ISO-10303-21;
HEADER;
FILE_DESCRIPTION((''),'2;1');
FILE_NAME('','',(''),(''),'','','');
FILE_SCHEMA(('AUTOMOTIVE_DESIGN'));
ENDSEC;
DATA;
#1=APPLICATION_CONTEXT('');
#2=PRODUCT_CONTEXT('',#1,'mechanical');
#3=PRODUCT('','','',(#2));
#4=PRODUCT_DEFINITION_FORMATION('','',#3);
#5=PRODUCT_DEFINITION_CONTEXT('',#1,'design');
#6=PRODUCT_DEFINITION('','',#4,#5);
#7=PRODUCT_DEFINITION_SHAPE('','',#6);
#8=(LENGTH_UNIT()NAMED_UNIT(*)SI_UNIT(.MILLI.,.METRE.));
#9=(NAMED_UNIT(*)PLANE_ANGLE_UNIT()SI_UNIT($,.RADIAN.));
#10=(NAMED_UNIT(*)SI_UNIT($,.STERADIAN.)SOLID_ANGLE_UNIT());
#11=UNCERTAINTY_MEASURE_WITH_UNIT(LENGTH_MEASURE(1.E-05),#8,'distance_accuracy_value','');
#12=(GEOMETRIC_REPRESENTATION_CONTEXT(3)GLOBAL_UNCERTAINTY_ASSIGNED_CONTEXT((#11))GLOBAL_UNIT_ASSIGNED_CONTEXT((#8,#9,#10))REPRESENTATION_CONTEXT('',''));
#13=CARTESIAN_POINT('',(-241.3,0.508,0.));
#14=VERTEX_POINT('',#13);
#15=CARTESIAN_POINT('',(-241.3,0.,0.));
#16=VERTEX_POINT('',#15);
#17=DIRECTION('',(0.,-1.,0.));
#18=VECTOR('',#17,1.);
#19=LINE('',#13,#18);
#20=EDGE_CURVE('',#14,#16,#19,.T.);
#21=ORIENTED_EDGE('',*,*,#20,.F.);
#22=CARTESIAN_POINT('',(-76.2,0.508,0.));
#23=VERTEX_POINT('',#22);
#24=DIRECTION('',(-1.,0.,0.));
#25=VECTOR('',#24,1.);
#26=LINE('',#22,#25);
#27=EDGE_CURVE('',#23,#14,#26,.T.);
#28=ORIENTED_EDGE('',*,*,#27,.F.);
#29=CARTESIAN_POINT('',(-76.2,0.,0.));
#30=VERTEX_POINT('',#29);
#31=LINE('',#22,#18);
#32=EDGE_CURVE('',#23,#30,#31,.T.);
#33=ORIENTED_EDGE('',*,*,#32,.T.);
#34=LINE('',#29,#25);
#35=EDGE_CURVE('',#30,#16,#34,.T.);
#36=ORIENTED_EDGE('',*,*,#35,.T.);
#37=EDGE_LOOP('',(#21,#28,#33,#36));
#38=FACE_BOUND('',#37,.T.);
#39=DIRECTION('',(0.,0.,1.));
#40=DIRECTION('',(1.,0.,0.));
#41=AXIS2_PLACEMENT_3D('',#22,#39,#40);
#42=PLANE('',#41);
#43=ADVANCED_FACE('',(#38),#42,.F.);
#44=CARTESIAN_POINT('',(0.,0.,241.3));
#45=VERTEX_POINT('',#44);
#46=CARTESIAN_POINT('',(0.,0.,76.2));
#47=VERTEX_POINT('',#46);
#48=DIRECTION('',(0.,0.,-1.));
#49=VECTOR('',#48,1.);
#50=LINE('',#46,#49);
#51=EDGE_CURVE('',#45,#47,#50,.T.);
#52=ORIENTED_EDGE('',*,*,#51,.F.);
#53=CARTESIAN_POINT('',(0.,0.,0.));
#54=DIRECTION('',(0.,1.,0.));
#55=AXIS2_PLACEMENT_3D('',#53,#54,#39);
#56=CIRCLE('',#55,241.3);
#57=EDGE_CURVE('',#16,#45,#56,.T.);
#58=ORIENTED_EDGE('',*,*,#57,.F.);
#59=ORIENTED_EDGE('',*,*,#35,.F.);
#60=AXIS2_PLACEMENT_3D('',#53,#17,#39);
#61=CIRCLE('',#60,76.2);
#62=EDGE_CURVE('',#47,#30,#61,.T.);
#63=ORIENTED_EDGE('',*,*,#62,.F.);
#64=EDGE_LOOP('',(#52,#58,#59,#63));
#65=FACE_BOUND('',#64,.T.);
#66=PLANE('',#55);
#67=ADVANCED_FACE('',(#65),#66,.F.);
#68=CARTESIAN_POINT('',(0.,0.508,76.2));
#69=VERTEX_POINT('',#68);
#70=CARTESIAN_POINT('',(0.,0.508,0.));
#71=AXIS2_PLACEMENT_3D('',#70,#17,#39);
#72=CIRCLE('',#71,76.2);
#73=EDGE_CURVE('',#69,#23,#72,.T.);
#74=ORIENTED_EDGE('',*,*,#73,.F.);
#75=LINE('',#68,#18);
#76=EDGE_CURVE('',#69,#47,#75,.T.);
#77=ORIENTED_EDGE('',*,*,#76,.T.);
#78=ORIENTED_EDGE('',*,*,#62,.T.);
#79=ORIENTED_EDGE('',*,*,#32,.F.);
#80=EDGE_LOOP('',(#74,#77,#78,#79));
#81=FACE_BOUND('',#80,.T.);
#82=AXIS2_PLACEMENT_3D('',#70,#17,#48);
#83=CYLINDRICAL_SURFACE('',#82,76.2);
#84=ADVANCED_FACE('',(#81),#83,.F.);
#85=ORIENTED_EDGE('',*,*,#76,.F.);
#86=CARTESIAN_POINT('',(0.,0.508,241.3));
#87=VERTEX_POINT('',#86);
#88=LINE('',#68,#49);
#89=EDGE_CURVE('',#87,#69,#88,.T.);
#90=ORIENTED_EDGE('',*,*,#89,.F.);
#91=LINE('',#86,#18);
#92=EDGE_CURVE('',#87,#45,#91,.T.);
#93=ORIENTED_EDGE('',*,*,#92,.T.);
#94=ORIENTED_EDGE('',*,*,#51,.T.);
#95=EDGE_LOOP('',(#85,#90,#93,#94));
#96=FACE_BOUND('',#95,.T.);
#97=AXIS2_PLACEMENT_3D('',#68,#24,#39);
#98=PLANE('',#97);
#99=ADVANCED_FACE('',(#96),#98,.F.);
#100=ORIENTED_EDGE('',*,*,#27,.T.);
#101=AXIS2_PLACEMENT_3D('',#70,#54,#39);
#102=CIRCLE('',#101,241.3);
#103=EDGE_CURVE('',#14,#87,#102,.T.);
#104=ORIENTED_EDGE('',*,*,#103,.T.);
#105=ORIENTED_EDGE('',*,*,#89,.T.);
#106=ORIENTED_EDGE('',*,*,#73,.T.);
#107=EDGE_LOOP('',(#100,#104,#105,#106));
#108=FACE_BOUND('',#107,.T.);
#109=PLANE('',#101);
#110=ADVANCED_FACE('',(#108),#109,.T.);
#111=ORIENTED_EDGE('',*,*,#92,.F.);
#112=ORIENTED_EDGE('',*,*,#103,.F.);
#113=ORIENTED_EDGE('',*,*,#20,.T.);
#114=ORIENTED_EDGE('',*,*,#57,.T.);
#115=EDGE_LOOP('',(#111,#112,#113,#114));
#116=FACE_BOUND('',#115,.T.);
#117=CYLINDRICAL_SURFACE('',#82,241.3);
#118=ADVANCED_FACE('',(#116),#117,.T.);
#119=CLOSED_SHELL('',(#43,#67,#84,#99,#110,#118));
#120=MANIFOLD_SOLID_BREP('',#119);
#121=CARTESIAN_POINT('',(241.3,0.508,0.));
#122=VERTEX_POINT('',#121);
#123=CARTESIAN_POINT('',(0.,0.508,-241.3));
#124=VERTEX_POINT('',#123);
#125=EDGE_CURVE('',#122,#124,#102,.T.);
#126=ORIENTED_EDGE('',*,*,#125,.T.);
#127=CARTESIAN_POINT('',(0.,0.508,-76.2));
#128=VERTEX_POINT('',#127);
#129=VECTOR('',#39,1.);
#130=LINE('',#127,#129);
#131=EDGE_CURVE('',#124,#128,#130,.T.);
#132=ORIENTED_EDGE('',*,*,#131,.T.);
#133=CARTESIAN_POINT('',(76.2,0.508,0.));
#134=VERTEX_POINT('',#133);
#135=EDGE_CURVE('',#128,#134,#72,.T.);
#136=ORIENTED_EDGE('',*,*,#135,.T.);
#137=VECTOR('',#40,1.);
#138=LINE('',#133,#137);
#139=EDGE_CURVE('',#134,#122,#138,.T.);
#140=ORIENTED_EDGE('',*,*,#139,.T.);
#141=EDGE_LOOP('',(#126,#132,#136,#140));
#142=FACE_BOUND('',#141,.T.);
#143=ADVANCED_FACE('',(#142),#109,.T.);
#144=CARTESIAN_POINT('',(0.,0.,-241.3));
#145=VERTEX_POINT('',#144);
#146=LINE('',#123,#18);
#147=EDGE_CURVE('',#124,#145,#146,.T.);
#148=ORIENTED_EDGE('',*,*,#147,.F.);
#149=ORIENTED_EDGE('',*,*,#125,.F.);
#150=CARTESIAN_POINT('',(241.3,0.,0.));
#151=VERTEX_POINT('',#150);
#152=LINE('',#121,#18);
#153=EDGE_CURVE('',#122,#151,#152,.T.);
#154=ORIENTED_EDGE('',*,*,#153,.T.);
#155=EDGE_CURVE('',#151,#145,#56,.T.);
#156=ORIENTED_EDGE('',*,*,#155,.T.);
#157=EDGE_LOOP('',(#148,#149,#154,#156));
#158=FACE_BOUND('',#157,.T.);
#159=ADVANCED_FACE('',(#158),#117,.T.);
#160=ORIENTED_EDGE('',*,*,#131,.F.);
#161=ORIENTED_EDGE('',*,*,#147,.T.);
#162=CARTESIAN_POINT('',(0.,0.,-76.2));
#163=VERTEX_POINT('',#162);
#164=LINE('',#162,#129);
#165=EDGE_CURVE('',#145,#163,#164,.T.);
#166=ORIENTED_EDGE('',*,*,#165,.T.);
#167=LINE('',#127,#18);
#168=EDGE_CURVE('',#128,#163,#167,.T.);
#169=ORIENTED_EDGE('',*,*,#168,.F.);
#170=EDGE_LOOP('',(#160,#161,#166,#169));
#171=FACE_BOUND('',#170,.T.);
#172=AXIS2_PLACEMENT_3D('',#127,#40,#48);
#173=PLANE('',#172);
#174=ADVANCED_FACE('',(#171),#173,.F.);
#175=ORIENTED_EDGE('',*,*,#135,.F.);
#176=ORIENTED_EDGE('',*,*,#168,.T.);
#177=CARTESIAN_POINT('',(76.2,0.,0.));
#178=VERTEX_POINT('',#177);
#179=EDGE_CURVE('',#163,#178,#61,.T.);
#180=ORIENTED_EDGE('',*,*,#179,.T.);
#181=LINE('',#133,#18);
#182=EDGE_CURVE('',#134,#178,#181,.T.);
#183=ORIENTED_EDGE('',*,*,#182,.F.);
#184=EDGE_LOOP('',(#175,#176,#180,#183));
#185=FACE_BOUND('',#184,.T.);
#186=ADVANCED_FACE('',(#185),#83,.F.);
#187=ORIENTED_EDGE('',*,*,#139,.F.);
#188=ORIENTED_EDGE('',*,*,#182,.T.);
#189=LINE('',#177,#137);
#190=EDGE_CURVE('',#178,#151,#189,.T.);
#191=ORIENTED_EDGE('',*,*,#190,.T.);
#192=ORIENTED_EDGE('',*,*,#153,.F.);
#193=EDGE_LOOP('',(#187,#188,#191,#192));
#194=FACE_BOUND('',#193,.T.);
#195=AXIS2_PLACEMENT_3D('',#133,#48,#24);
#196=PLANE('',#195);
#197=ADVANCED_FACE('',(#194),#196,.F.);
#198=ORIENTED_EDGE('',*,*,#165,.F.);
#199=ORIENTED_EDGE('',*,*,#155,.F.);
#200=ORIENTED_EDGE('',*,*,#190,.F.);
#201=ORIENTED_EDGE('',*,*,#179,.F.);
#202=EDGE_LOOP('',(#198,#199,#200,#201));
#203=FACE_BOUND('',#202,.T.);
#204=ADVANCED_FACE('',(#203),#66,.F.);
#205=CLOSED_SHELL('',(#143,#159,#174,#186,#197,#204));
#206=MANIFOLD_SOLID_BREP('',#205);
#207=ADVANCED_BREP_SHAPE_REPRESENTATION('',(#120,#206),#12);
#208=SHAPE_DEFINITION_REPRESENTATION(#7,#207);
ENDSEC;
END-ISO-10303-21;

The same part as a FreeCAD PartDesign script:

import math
import FreeCAD as App
import Part
import Sketcher
Q = App.Units.Quantity

doc = App.newDocument("Part")
body = doc.addObject("PartDesign::Body", "Body")

# Sketch on XZ plane
sketch1 = body.newObject("Sketcher::SketchObject", "Sketch")
sketch1.AttachmentSupport = (doc.getObject("XZ_Plane"), [""])
sketch1.MapMode = "FlatFace"
sketch1.addGeometry([
    Part.LineSegment(App.Vector(0, -241.3, 0), App.Vector(0, -76.2, 0)),
    Part.ArcOfCircle(Part.Circle(App.Vector(0, 0, 0), App.Vector(0, 0, 1), 76.2), math.radians(-90), math.radians(0)),
    Part.LineSegment(App.Vector(76.2, 0, 0), App.Vector(241.3, 0, 0)),
    Part.ArcOfCircle(Part.Circle(App.Vector(0, 0, 0), App.Vector(0, 0, 1), 241.3), math.radians(-90), math.radians(0)),
], False)
sketch1.addConstraint([
    Sketcher.Constraint("Coincident", 0, 2, 1, 1),
    Sketcher.Constraint("Coincident", 1, 2, 2, 1),
    Sketcher.Constraint("Coincident", 2, 2, 3, 2),
    Sketcher.Constraint("Coincident", 3, 1, 0, 1),
    Sketcher.Constraint("Vertical", 0),
    Sketcher.Constraint("Horizontal", 2),
    Sketcher.Constraint("Coincident", 1, 3, -1, 1),
    Sketcher.Constraint("Coincident", 3, 3, -1, 1),
    Sketcher.Constraint("PointOnObject", 0, 2, -2),
    Sketcher.Constraint("PointOnObject", 1, 2, -1),
    Sketcher.Constraint("Radius", 1, Q("3 in")),
    Sketcher.Constraint("Radius", 3, Q("9.5 in")),
])
pad1 = body.newObject("PartDesign::Pad", "Pad")
pad1.Profile = sketch1
pad1.Length = Q("0.02 in")
pad1.Reversed = True
body2 = doc.addObject("PartDesign::Body", "Body001")

# Sketch on XZ plane
sketch2 = body2.newObject("Sketcher::SketchObject", "Sketch001")
sketch2.AttachmentSupport = (doc.getObject("XZ_Plane001"), [""])
sketch2.MapMode = "FlatFace"
sketch2.addGeometry([
    Part.LineSegment(App.Vector(-76.2, 0, 0), App.Vector(-241.3, 0, 0)),
    Part.ArcOfCircle(Part.Circle(App.Vector(0, 0, 0), App.Vector(0, 0, 1), 241.3), math.radians(90), math.radians(180)),
    Part.LineSegment(App.Vector(0, 241.3, 0), App.Vector(0, 76.2, 0)),
    Part.ArcOfCircle(Part.Circle(App.Vector(0, 0, 0), App.Vector(0, 0, 1), 76.2), math.radians(90), math.radians(180)),
], False)
sketch2.addConstraint([
    Sketcher.Constraint("Coincident", 0, 2, 1, 2),
    Sketcher.Constraint("Coincident", 1, 1, 2, 1),
    Sketcher.Constraint("Coincident", 2, 2, 3, 1),
    Sketcher.Constraint("Coincident", 3, 2, 0, 1),
    Sketcher.Constraint("Horizontal", 0),
    Sketcher.Constraint("Vertical", 2),
    Sketcher.Constraint("Coincident", 1, 3, -1, 1),
    Sketcher.Constraint("Coincident", 3, 3, -1, 1),
    Sketcher.Constraint("PointOnObject", 0, 2, -1),
    Sketcher.Constraint("PointOnObject", 1, 1, -2),
    Sketcher.Constraint("Radius", 3, Q("3 in")),
    Sketcher.Constraint("Radius", 1, Q("9.5 in")),
])
pad2 = body2.newObject("PartDesign::Pad", "Pad001")
pad2.Profile = sketch2
pad2.Length = Q("0.02 in")
pad2.Reversed = True

doc.recompute()
